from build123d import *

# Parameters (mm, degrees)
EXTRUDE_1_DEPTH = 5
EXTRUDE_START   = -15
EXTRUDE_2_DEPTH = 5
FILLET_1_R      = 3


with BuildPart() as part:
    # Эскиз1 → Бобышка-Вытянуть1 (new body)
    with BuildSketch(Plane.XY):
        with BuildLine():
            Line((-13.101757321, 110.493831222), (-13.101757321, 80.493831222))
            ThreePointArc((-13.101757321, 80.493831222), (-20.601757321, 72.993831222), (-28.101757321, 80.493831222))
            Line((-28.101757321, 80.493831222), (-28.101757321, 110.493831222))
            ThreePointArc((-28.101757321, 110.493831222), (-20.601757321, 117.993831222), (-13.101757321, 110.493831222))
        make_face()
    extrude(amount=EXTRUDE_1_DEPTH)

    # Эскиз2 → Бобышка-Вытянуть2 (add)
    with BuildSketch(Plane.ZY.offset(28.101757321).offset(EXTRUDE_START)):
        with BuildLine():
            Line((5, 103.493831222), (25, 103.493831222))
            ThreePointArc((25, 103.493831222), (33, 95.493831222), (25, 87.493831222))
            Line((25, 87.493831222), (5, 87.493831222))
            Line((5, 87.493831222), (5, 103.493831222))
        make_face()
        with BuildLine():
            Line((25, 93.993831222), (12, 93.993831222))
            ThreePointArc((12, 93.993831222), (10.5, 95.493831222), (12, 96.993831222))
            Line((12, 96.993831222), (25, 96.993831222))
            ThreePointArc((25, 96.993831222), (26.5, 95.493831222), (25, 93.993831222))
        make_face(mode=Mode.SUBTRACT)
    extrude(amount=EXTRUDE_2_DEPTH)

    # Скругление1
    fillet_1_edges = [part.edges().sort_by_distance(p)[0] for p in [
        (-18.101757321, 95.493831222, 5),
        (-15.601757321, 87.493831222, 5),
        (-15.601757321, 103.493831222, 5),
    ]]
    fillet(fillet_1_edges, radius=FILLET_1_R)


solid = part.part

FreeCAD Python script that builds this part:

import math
import FreeCAD as App
import Part
import Sketcher

V = App.Vector
Q = App.Units.Quantity


def edges_at(feature, points):
    """Names of the edges that pass closest to the given points."""
    edges = feature.Shape.Edges
    near = lambda p: min(range(len(edges)), key=lambda i: edges[i].distToShape(Part.Vertex(*p))[0])
    return sorted({f"Edge{near(p) + 1}" for p in points})

doc = App.newDocument("Part")
body = doc.addObject("PartDesign::Body", "Body")

sketch1 = body.newObject("Sketcher::SketchObject", "Sketch")
sketch1.AttachmentSupport = (doc.getObject("XY_Plane"), [""])
sketch1.MapMode = "FlatFace"
sketch1.addGeometry([
    Part.LineSegment(V(-13, 80, 0), V(-13, 110, 0)),
    Part.ArcOfCircle(Part.Circle(V(-21, 110, 0), V(0, 0, 1), 8), math.radians(0), math.radians(180)),
    Part.LineSegment(V(-28, 110, 0), V(-28, 80, 0)),
    Part.ArcOfCircle(Part.Circle(V(-21, 80, 0), V(0, 0, 1), 8), math.radians(180), math.radians(360)),
], False)
sketch1.addConstraint([
    Sketcher.Constraint("Tangent", 0, 2, 1, 1),
    Sketcher.Constraint("Tangent", 1, 2, 2, 1),
    Sketcher.Constraint("Tangent", 2, 2, 3, 1),
    Sketcher.Constraint("Tangent", 3, 2, 0, 1),
    Sketcher.Constraint("Vertical", 0),
    Sketcher.Constraint("Vertical", 2),
    Sketcher.Constraint("Radius", 1, Q("7.5 mm")),
    Sketcher.Constraint("DistanceY", 0, 1, 0, 2, Q("30 mm")),
    Sketcher.Constraint("DistanceY", -1, 1, 1, 3, Q("110.493831 mm")),
    Sketcher.Constraint("DistanceX", 1, 3, -1, 1, Q("20.601757 mm")),
])
pad1 = body.newObject("PartDesign::Pad", "Pad")
pad1.Profile = sketch1
pad1.Length = 5

sketch2 = body.newObject("Sketcher::SketchObject", "Sketch001")
sketch2.AttachmentSupport = (doc.getObject("YZ_Plane"), [""])
sketch2.MapMode = "FlatFace"
sketch2.AttachmentOffset = App.Placement(V(0, 0, -13.101757), App.Rotation())
sketch2.addGeometry([
    Part.LineSegment(V(103.5, 25, 0), V(103.5, 5, 0)),
    Part.LineSegment(V(103.5, 5, 0), V(87.5, 5, 0)),
    Part.LineSegment(V(87.5, 5, 0), V(87.5, 25, 0)),
    Part.ArcOfCircle(Part.Circle(V(95.5, 25, 0), V(0, 0, 1), 8), math.radians(0), math.radians(180)),
    Part.LineSegment(V(94, 25, 0), V(94, 12, 0)),
    Part.ArcOfCircle(Part.Circle(V(95.5, 12, 0), V(0, 0, 1), 1.5), math.radians(180), math.radians(360)),
    Part.LineSegment(V(97, 12, 0), V(97, 25, 0)),
    Part.ArcOfCircle(Part.Circle(V(95.5, 25, 0), V(0, 0, 1), 1.5), math.radians(0), math.radians(180)),
], False)
sketch2.addConstraint([
    Sketcher.Constraint("Coincident", 0, 2, 1, 1),
    Sketcher.Constraint("Coincident", 1, 2, 2, 1),
    Sketcher.Constraint("Tangent", 2, 2, 3, 2),
    Sketcher.Constraint("Tangent", 3, 1, 0, 1),
    Sketcher.Constraint("Tangent", 4, 2, 5, 1),
    Sketcher.Constraint("Tangent", 5, 2, 6, 1),
    Sketcher.Constraint("Tangent", 6, 2, 7, 1),
    Sketcher.Constraint("Tangent", 7, 2, 4, 1),
    Sketcher.Constraint("Vertical", 0),
    Sketcher.Constraint("Horizontal", 1),
    Sketcher.Constraint("Vertical", 2),
    Sketcher.Constraint("Vertical", 4),
    Sketcher.Constraint("Vertical", 6),
    Sketcher.Constraint("Coincident", 7, 3, 3, 3),
    Sketcher.Constraint("Radius", 3, Q("8 mm")),
    Sketcher.Constraint("Radius", 5, Q("1.5 mm")),
    Sketcher.Constraint("DistanceY", 0, 2, 0, 1, Q("20 mm")),
    Sketcher.Constraint("DistanceY", 4, 2, 4, 1, Q("13 mm")),
    Sketcher.Constraint("DistanceY", -1, 1, 3, 3, Q("25 mm")),
    Sketcher.Constraint("DistanceX", -1, 1, 3, 3, Q("95.493831 mm")),
])
pad2 = body.newObject("PartDesign::Pad", "Pad001")
pad2.Profile = sketch2
pad2.Length = 5
pad2.Reversed = True
doc.recompute()

fillet = body.newObject("PartDesign::Fillet", "Fillet")
fillet.Base = (pad2, edges_at(pad2, [(-18.102, 95.494, 5), (-15.602, 87.494, 5), (-15.602, 103.494, 5)]))
fillet.Radius = 3

doc.recompute()
